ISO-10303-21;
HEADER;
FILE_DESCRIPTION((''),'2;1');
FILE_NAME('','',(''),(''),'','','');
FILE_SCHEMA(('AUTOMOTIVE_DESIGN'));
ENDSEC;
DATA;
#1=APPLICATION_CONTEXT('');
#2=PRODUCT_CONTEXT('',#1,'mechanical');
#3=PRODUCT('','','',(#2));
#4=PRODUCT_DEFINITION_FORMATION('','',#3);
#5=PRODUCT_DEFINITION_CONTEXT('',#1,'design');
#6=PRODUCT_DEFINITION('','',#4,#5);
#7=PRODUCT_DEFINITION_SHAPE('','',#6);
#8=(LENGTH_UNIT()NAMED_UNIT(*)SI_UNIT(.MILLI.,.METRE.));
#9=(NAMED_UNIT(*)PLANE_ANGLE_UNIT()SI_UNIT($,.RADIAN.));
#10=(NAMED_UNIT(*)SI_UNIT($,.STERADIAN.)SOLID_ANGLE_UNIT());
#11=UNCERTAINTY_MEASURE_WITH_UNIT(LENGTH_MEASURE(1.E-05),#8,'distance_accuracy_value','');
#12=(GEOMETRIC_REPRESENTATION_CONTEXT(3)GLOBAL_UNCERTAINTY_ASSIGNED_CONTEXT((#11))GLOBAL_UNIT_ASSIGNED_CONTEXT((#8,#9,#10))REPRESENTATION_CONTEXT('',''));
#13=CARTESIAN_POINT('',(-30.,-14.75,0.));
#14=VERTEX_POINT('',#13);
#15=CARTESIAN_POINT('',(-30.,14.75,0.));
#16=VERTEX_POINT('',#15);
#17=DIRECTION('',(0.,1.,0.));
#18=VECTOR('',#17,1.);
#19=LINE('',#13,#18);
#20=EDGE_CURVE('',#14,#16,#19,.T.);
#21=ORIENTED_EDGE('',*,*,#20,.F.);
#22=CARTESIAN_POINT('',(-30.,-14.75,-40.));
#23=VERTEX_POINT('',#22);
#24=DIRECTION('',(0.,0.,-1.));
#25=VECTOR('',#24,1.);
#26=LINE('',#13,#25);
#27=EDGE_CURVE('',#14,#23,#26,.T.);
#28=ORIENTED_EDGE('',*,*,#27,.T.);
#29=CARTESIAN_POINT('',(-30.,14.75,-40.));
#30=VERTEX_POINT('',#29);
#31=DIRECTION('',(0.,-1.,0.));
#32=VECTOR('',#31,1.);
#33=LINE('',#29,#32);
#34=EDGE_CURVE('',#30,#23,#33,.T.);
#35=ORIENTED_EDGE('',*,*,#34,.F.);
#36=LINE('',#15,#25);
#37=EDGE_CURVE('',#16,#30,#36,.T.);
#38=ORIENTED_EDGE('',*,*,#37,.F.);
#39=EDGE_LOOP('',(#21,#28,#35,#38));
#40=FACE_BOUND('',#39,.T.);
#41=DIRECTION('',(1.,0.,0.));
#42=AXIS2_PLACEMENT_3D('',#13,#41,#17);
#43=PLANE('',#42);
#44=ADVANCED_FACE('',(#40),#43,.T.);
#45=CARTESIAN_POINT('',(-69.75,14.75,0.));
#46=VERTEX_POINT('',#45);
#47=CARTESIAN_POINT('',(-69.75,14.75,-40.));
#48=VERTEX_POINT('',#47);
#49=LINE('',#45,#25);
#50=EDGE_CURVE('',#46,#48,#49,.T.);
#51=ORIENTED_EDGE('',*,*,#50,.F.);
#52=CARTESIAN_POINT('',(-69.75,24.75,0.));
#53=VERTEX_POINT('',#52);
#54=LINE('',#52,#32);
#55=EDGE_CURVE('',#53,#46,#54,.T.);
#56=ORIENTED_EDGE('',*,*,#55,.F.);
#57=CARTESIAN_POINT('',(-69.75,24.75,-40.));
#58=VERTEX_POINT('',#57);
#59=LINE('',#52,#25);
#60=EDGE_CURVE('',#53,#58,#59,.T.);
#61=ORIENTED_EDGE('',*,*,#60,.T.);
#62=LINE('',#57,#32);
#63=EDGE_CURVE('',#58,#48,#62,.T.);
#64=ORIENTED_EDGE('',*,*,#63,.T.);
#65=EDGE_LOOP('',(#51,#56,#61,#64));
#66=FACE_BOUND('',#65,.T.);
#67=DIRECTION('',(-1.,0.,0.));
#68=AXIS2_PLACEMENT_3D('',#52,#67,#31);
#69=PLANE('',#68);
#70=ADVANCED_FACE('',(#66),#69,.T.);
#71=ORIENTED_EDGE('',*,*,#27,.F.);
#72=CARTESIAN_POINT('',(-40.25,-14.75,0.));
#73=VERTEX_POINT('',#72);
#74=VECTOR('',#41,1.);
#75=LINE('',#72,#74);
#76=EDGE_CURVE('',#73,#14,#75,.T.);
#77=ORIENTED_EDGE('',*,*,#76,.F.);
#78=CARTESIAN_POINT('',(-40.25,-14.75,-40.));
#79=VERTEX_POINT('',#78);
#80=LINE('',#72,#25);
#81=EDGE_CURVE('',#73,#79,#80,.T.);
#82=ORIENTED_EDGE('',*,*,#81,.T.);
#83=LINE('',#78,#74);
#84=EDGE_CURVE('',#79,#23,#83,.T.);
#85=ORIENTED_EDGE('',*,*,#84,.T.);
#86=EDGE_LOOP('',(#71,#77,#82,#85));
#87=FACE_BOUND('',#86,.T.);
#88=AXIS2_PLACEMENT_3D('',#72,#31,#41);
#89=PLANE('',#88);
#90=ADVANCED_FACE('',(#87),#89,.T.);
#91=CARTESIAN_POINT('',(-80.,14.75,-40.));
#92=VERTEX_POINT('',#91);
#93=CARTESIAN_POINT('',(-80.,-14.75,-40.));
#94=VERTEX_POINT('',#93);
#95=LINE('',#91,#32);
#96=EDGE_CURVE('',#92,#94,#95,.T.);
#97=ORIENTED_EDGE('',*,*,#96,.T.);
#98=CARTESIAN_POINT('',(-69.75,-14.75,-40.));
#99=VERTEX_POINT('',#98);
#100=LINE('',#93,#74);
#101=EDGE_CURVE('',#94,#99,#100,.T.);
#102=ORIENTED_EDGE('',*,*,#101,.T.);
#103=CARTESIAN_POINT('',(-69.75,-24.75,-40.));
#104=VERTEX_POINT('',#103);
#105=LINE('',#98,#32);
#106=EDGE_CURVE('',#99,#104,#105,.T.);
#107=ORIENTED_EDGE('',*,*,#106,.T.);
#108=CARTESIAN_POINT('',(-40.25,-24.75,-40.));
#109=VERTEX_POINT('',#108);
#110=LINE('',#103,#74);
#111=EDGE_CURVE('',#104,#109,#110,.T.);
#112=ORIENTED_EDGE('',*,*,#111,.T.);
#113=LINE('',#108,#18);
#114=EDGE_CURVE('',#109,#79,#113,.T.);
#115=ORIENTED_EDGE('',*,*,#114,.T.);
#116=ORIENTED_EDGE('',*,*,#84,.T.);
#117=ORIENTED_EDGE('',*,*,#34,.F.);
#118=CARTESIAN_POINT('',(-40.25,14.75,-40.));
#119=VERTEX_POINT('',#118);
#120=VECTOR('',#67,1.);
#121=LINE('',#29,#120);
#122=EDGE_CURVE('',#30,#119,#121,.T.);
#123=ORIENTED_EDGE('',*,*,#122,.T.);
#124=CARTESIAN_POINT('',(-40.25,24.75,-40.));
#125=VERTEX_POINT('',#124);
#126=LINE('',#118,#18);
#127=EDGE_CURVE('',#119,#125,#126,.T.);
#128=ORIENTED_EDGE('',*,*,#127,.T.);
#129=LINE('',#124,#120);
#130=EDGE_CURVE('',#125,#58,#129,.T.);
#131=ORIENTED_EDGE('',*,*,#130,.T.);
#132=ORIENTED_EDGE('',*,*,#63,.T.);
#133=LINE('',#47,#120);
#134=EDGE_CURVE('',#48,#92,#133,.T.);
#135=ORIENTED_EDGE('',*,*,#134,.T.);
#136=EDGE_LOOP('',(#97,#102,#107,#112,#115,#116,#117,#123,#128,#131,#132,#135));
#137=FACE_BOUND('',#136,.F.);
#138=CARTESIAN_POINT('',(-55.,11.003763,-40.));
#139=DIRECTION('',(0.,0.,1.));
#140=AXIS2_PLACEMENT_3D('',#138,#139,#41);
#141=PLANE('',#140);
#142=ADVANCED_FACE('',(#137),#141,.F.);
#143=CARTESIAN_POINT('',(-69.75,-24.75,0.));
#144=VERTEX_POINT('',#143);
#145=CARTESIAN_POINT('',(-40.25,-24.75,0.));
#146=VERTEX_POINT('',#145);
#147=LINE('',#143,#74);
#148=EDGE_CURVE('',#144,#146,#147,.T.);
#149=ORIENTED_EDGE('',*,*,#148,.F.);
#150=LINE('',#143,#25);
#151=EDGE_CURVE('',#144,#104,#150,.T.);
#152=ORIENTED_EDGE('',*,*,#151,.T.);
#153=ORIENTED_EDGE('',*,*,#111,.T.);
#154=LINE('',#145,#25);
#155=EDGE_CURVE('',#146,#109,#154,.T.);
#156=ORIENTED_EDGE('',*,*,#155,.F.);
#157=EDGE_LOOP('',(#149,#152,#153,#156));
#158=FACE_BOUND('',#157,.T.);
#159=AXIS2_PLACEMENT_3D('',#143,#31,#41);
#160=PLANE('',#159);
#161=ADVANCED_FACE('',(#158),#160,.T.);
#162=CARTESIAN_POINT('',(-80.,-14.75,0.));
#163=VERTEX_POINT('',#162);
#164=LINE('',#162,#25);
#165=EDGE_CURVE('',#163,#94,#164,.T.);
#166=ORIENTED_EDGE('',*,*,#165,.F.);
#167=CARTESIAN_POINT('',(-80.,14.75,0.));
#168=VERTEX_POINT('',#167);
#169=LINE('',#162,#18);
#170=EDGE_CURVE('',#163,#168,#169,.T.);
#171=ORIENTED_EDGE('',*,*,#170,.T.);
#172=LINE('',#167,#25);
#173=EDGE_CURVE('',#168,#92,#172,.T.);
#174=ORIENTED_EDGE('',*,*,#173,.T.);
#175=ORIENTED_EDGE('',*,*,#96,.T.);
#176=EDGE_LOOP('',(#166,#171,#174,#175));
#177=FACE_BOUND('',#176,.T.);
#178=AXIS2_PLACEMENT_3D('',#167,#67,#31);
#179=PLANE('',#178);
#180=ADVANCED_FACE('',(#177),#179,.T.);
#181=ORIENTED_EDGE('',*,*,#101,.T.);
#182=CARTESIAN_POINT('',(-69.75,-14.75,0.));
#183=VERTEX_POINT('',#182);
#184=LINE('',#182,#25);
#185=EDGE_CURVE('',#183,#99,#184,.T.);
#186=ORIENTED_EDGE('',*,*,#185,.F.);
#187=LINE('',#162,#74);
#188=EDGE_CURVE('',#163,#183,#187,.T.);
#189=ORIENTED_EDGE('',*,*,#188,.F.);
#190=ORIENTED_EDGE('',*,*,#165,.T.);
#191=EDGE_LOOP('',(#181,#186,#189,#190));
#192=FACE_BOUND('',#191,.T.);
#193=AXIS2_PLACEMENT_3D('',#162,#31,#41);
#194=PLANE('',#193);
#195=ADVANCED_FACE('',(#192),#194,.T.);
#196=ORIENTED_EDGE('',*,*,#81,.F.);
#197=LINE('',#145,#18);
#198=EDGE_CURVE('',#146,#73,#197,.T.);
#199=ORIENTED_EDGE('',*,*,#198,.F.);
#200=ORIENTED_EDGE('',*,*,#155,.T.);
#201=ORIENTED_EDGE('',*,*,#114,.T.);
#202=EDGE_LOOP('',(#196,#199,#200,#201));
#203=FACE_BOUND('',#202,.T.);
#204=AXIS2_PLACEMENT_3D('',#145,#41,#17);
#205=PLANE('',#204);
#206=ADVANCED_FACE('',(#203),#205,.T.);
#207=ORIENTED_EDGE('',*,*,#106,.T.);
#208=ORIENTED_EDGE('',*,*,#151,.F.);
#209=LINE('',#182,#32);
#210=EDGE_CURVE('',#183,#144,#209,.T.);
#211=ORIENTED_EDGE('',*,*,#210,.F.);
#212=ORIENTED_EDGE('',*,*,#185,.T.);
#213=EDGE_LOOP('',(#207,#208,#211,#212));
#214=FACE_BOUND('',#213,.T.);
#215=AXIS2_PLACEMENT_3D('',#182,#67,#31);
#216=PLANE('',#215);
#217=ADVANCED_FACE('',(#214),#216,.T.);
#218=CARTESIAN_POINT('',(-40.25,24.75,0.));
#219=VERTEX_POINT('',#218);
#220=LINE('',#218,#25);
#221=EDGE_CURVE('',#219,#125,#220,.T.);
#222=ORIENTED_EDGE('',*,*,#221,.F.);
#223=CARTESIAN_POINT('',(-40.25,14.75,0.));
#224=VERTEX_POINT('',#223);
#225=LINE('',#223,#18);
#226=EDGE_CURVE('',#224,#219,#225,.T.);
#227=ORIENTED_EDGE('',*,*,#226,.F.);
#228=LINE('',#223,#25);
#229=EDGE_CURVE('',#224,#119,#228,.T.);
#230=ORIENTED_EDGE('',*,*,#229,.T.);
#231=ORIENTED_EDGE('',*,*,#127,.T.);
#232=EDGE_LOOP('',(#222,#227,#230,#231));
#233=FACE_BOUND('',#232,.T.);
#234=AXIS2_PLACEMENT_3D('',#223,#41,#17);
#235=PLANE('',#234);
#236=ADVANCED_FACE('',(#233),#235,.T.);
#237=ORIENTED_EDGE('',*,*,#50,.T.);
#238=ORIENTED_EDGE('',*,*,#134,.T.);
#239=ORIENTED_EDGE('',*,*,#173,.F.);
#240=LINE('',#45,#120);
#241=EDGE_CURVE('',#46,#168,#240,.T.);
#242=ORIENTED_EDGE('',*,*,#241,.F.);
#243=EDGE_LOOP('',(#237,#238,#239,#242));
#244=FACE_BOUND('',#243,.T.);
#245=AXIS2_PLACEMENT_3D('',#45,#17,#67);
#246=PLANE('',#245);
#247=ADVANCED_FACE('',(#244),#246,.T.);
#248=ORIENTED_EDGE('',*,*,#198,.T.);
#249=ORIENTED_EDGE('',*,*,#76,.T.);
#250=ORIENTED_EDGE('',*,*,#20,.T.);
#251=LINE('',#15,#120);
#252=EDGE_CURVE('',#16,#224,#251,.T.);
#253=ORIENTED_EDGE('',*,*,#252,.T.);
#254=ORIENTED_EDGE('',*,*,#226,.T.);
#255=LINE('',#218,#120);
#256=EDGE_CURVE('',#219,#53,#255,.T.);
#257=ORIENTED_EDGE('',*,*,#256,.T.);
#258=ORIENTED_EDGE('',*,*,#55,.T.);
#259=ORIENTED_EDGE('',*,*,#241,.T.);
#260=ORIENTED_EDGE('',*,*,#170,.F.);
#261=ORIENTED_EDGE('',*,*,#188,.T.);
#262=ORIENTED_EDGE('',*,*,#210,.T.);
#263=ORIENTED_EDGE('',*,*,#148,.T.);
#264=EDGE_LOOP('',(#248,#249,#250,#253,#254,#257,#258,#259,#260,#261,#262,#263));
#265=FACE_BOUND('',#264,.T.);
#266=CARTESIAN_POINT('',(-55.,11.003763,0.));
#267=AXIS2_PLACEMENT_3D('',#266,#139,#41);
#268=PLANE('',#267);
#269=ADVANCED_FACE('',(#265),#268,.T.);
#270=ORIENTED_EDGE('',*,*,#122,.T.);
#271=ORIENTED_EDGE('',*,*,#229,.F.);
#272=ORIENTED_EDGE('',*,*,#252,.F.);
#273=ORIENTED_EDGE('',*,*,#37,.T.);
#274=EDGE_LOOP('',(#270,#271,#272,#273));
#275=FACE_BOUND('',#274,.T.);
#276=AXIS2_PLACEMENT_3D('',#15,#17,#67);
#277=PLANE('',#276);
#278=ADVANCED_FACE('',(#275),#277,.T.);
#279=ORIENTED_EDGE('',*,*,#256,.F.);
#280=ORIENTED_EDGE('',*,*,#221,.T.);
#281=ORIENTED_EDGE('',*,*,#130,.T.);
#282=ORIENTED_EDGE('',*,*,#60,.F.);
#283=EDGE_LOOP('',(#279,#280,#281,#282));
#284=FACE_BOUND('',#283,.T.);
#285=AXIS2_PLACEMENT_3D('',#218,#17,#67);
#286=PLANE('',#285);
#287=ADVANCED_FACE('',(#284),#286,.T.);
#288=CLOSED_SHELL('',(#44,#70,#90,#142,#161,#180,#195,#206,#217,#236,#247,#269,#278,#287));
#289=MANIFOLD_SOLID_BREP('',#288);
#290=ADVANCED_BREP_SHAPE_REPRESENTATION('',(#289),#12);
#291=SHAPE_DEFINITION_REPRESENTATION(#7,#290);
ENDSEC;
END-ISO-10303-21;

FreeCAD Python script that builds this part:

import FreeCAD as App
import Part
import Sketcher


def add_polygon(sketch, points):
    """Adds a closed chain of lines whose ends are joined by coincident constraints."""
    first, n = sketch.GeometryCount, len(points)
    for a, b in zip(points, points[1:] + points[:1]):
        sketch.addGeometry(Part.LineSegment(App.Vector(*a, 0), App.Vector(*b, 0)), False)
    for i in range(n):
        sketch.addConstraint(Sketcher.Constraint("Coincident", first + i, 2, first + (i + 1) % n, 1))

doc = App.newDocument("Part")
body = doc.addObject("PartDesign::Body", "Body")

sketch1 = doc.addObject("Sketcher::SketchObject", "Sketch")
body.addObject(sketch1)
sketch1.AttachmentSupport = (doc.XY_Plane, [""])
sketch1.MapMode = "FlatFace"
add_polygon(sketch1, [(-30, 0), (-80, 0), (-80, -14.75), (-69.75, -14.75), (-69.75, -24.75), (-40.25, -24.75), (-40.25, -14.75), (-30, -14.75)])
sketch1.addConstraint([
    Sketcher.Constraint("Horizontal", 0),
    Sketcher.Constraint("Vertical", 1),
    Sketcher.Constraint("Horizontal", 2),
    Sketcher.Constraint("Vertical", 3),
    Sketcher.Constraint("Horizontal", 4),
    Sketcher.Constraint("Vertical", 5),
    Sketcher.Constraint("Horizontal", 6),
    Sketcher.Constraint("Vertical", 7),
    Sketcher.Constraint("PointOnObject", 0, 2, -1),
    Sketcher.Constraint("Horizontal", 2, 2, 5, 2),
    Sketcher.Constraint("Equal", 2, 6),
    Sketcher.Constraint("DistanceX", 0, 2, 0, 1, 50.0),
    Sketcher.Constraint("DistanceY", 3, 2, 3, 1, 10.0),
    Sketcher.Constraint("DistanceX", 4, 1, 4, 2, 29.5),
    Sketcher.Constraint("DistanceX", 0, 2, -1, 1, 80.0),
    Sketcher.Constraint("DistanceY", 1, 2, 1, 1, 14.75),
])
pad1 = doc.addObject("PartDesign::Pad", "Pad")
body.addObject(pad1)
pad1.Profile = sketch1
pad1.Length = 40
pad1.Reversed = True

sketch2 = doc.addObject("Sketcher::SketchObject", "Sketch001")
body.addObject(sketch2)
sketch2.AttachmentSupport = (doc.XY_Plane, [""])
sketch2.MapMode = "FlatFace"
add_polygon(sketch2, [(-69.75, 14.75), (-80, 14.75), (-80, -14.75), (-69.75, -14.75), (-69.75, -24.75), (-40.25, -24.75), (-40.25, -14.75), (-30, -14.75), (-30, 14.75), (-40.25, 14.75), (-40.25, 24.75), (-69.75, 24.75)])
sketch2.addConstraint([
    Sketcher.Constraint("Horizontal", 0),
    Sketcher.Constraint("Vertical", 1),
    Sketcher.Constraint("Horizontal", 2),
    Sketcher.Constraint("Vertical", 3),
    Sketcher.Constraint("Horizontal", 4),
    Sketcher.Constraint("Vertical", 5),
    Sketcher.Constraint("Horizontal", 6),
    Sketcher.Constraint("Vertical", 7),
    Sketcher.Constraint("Horizontal", 8),
    Sketcher.Constraint("Vertical", 9),
    Sketcher.Constraint("Horizontal", 10),
    Sketcher.Constraint("Vertical", 11),
    Sketcher.Constraint("Symmetric", 5, 2, 8, 2, -1),
    Sketcher.Constraint("Symmetric", 3, 2, 10, 2, -1),
    Sketcher.Constraint("Horizontal", 2, 2, 5, 2),
    Sketcher.Constraint("Horizontal", 0, 2, 7, 2),
    Sketcher.Constraint("Equal", 2, 6),
    Sketcher.Constraint("Equal", 10, 1),
    Sketcher.Constraint("DistanceY", 3, 2, 3, 1, 10.0),
    Sketcher.Constraint("DistanceX", 4, 1, 4, 2, 29.5),
    Sketcher.Constraint("DistanceX", 0, 2, -1, 1, 80.0),
    Sketcher.Constraint("DistanceX", 6, 2, -1, 1, 30.0),
])
pad2 = doc.addObject("PartDesign::Pad", "Pad001")
body.addObject(pad2)
pad2.Profile = sketch2
pad2.Length = 40
pad2.Reversed = True

doc.recompute()
